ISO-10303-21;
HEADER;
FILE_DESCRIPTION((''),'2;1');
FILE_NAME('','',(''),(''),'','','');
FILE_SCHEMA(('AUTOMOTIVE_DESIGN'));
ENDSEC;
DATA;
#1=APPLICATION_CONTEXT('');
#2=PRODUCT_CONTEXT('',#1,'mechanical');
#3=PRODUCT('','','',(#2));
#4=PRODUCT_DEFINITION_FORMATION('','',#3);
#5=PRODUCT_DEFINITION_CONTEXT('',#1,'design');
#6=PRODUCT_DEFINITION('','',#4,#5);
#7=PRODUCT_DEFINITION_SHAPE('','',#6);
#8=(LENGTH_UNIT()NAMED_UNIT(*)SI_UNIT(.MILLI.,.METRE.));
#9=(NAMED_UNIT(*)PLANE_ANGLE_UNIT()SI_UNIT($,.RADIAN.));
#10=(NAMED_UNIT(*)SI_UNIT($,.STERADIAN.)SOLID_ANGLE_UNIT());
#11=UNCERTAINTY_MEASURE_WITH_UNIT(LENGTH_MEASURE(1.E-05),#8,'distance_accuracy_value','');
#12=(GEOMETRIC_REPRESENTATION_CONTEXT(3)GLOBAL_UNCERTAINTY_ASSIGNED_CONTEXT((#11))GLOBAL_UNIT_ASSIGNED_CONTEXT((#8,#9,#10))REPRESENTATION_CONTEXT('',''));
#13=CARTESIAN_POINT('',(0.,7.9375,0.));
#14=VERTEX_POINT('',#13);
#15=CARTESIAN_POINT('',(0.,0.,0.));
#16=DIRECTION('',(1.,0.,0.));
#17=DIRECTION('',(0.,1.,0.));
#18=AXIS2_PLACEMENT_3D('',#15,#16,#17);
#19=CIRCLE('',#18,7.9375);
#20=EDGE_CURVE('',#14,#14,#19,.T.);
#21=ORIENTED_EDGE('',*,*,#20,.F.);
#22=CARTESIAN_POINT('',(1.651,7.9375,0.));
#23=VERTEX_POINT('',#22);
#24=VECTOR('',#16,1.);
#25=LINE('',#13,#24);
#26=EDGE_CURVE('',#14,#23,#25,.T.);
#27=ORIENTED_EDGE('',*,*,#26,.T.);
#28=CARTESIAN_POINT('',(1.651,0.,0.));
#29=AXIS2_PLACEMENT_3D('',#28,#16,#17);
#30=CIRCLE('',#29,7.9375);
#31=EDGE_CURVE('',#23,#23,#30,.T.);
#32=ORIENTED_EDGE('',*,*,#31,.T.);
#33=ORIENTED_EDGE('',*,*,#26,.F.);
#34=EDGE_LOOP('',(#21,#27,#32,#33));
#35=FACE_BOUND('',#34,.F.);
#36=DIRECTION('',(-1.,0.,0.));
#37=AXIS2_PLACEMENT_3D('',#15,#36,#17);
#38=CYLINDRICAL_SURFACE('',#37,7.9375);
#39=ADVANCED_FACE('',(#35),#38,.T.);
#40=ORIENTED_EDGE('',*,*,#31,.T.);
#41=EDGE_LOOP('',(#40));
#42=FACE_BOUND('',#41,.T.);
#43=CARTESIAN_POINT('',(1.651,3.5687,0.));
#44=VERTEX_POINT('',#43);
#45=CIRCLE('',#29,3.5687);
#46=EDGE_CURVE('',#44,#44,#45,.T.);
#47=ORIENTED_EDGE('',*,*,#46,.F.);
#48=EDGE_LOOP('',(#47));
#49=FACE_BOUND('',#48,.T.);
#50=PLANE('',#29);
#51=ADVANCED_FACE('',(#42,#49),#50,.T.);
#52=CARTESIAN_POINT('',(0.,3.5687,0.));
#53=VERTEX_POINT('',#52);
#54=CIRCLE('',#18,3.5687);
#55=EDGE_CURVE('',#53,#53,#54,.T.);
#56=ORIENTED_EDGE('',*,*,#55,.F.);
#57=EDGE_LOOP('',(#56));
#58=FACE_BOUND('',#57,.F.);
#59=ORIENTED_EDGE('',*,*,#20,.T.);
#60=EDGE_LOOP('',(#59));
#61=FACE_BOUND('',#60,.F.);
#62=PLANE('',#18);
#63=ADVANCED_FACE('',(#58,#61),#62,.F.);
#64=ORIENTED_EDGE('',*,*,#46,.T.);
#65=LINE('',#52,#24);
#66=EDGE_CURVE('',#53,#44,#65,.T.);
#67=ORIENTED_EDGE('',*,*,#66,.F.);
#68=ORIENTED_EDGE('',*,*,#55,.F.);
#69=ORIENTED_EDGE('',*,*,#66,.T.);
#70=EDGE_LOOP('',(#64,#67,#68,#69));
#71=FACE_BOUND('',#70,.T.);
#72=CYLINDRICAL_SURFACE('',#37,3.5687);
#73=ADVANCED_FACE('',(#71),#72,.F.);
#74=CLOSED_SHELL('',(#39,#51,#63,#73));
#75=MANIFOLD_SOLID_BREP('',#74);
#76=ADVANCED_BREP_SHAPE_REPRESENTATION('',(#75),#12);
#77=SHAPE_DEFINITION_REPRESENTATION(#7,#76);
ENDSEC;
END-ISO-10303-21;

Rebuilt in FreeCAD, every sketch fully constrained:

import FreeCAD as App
import Part
import Sketcher

V = App.Vector
Q = App.Units.Quantity

doc = App.newDocument("Part")
body = doc.addObject("PartDesign::Body", "Body")

sketch1 = doc.addObject("Sketcher::SketchObject", "Sketch")
body.addObject(sketch1)
sketch1.AttachmentSupport = (doc.YZ_Plane, [""])
sketch1.MapMode = "FlatFace"
sketch1.addGeometry([
    Part.Circle(V(0, 0, 0), V(0, 0, 1), 7.9375),
    Part.Circle(V(0, 0, 0), V(0, 0, 1), 3.5687),
], False)
sketch1.addConstraint([
    Sketcher.Constraint("Coincident", 0, 3, -1, 1),
    Sketcher.Constraint("Coincident", 1, 3, -1, 1),
    Sketcher.Constraint("Diameter", 0, Q("0.625 in")),
    Sketcher.Constraint("Diameter", 1, Q("0.281 in")),
])
pad1 = doc.addObject("PartDesign::Pad", "Pad")
body.addObject(pad1)
pad1.Profile = sketch1
pad1.Length = Q("0.065 in")

doc.recompute()
